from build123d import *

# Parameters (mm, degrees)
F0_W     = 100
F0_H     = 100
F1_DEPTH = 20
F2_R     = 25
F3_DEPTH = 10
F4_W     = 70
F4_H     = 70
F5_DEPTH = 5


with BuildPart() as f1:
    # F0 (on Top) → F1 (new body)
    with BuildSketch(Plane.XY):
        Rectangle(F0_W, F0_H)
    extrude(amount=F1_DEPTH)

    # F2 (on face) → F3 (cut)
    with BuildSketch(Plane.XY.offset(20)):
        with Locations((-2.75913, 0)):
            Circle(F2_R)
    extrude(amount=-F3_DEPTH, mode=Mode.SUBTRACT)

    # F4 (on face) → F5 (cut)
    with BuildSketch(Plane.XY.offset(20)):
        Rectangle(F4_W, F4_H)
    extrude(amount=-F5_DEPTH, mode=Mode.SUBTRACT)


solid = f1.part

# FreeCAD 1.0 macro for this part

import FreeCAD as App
import Part
import Sketcher
from FreeCAD import Vector
Q = App.Units.Quantity

doc = App.newDocument("Part")
body = doc.addObject("PartDesign::Body", "Body")

sketch1 = body.newObject("Sketcher::SketchObject", "Sketch")
sketch1.AttachmentSupport = (doc.getObject("XY_Plane"), [""])
sketch1.MapMode = "FlatFace"
sketch1.addGeometry([
    Part.LineSegment(Vector(-50, 50, 0), Vector(-50, -50, 0)),
    Part.LineSegment(Vector(-50, -50, 0), Vector(50, -50, 0)),
    Part.LineSegment(Vector(50, -50, 0), Vector(50, 50, 0)),
    Part.LineSegment(Vector(50, 50, 0), Vector(-50, 50, 0)),
], False)
sketch1.addConstraint([
    Sketcher.Constraint("Coincident", 0, 2, 1, 1),
    Sketcher.Constraint("Coincident", 1, 2, 2, 1),
    Sketcher.Constraint("Coincident", 2, 2, 3, 1),
    Sketcher.Constraint("Coincident", 3, 2, 0, 1),
    Sketcher.Constraint("Vertical", 0),
    Sketcher.Constraint("Horizontal", 1),
    Sketcher.Constraint("Vertical", 2),
    Sketcher.Constraint("Horizontal", 3),
    Sketcher.Constraint("Symmetric", 0, 2, 2, 2, -1, 1),
    Sketcher.Constraint("Equal", 3, 0),
    Sketcher.Constraint("DistanceX", 1, 1, 1, 2, Q("100 mm")),
])
pad1 = body.newObject("PartDesign::Pad", "Pad")
pad1.Profile = sketch1
pad1.Length = 20

sketch2 = body.newObject("Sketcher::SketchObject", "Sketch001")
sketch2.AttachmentSupport = (doc.getObject("XY_Plane"), [""])
sketch2.MapMode = "FlatFace"
sketch2.AttachmentOffset = App.Placement(Vector(0, 0, 20), App.Rotation())
sketch2.addGeometry(Part.Circle(Vector(-3, 0, 0), Vector(0, 0, 1), 25), False)
sketch2.addConstraint([
    Sketcher.Constraint("PointOnObject", 0, 3, -1),
    Sketcher.Constraint("Diameter", 0, Q("50 mm")),
    Sketcher.Constraint("DistanceX", 0, 3, -1, 1, Q("2.75913 mm")),
])
pocket1 = body.newObject("PartDesign::Pocket", "Pocket")
pocket1.Profile = sketch2
pocket1.Length = 10

sketch3 = body.newObject("Sketcher::SketchObject", "Sketch002")
sketch3.AttachmentSupport = (doc.getObject("XY_Plane"), [""])
sketch3.MapMode = "FlatFace"
sketch3.AttachmentOffset = App.Placement(Vector(0, 0, 20), App.Rotation())
sketch3.addGeometry([
    Part.LineSegment(Vector(-35, 35, 0), Vector(-35, -35, 0)),
    Part.LineSegment(Vector(-35, -35, 0), Vector(35, -35, 0)),
    Part.LineSegment(Vector(35, -35, 0), Vector(35, 35, 0)),
    Part.LineSegment(Vector(35, 35, 0), Vector(-35, 35, 0)),
], False)
sketch3.addConstraint([
    Sketcher.Constraint("Coincident", 0, 2, 1, 1),
    Sketcher.Constraint("Coincident", 1, 2, 2, 1),
    Sketcher.Constraint("Coincident", 2, 2, 3, 1),
    Sketcher.Constraint("Coincident", 3, 2, 0, 1),
    Sketcher.Constraint("Vertical", 0),
    Sketcher.Constraint("Horizontal", 1),
    Sketcher.Constraint("Vertical", 2),
    Sketcher.Constraint("Horizontal", 3),
    Sketcher.Constraint("Symmetric", 0, 2, 2, 2, -1, 1),
    Sketcher.Constraint("Equal", 3, 0),
    Sketcher.Constraint("DistanceX", 1, 1, 1, 2, Q("70 mm")),
])
pocket2 = body.newObject("PartDesign::Pocket", "Pocket001")
pocket2.Profile = sketch3
pocket2.Length = 5

doc.recompute()
